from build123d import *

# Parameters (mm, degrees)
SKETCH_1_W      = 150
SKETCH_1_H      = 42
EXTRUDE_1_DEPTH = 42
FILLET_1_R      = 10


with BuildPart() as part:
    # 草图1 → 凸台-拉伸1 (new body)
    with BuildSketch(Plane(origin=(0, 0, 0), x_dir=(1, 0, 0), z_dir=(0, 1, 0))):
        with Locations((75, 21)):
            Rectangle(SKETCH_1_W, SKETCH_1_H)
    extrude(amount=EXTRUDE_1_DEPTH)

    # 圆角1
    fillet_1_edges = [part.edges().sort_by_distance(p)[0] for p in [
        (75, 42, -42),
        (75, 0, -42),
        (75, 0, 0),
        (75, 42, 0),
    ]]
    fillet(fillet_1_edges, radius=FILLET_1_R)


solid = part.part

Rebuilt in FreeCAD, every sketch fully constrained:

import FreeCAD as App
import Part
import Sketcher
from FreeCAD import Vector
Q = App.Units.Quantity


def edges_at(feature, points):
    """Names of the edges that pass closest to the given points."""
    edges = feature.Shape.Edges
    near = lambda p: min(range(len(edges)), key=lambda i: edges[i].distToShape(Part.Vertex(*p))[0])
    return sorted({f"Edge{near(p) + 1}" for p in points})


def add_polygon(sketch, points):
    """Adds a closed chain of lines whose ends are joined by coincident constraints."""
    first, n = sketch.GeometryCount, len(points)
    for a, b in zip(points, points[1:] + points[:1]):
        sketch.addGeometry(Part.LineSegment(App.Vector(*a, 0), App.Vector(*b, 0)), False)
    for i in range(n):
        sketch.addConstraint(Sketcher.Constraint("Coincident", first + i, 2, first + (i + 1) % n, 1))

doc = App.newDocument("Part")
body = doc.addObject("PartDesign::Body", "Body")

# Sketch on XZ plane
sketch1 = body.newObject("Sketcher::SketchObject", "Sketch")
sketch1.AttachmentSupport = (doc.getObject("XZ_Plane"), [""])
sketch1.MapMode = "FlatFace"
add_polygon(sketch1, [(0, -42), (0, 0), (150, 0), (150, -42)])  # lines 0-3
sketch1.addConstraint(Sketcher.Constraint("Vertical", 0))
sketch1.addConstraint(Sketcher.Constraint("Horizontal", 1))
sketch1.addConstraint(Sketcher.Constraint("Vertical", 2))
sketch1.addConstraint(Sketcher.Constraint("Horizontal", 3))
sketch1.addConstraint(Sketcher.Constraint("Coincident", 0, 2, -1, 1))
sketch1.addConstraint(Sketcher.Constraint("DistanceX", 1, 1, 1, 2, Q("150 mm")))
sketch1.addConstraint(Sketcher.Constraint("DistanceY", 0, 1, 0, 2, Q("42 mm")))
pad1 = body.newObject("PartDesign::Pad", "Pad")
pad1.Profile = sketch1
pad1.Length = 42
pad1.Reversed = True
doc.recompute()

fillet = body.newObject("PartDesign::Fillet", "Fillet")
fillet.Base = (pad1, edges_at(pad1, [
    (75, 42, -42),
    (75, 0, -42),
    (75, 0, 0),
    (75, 42, 0),
]))
fillet.Radius = 10

doc.recompute()
